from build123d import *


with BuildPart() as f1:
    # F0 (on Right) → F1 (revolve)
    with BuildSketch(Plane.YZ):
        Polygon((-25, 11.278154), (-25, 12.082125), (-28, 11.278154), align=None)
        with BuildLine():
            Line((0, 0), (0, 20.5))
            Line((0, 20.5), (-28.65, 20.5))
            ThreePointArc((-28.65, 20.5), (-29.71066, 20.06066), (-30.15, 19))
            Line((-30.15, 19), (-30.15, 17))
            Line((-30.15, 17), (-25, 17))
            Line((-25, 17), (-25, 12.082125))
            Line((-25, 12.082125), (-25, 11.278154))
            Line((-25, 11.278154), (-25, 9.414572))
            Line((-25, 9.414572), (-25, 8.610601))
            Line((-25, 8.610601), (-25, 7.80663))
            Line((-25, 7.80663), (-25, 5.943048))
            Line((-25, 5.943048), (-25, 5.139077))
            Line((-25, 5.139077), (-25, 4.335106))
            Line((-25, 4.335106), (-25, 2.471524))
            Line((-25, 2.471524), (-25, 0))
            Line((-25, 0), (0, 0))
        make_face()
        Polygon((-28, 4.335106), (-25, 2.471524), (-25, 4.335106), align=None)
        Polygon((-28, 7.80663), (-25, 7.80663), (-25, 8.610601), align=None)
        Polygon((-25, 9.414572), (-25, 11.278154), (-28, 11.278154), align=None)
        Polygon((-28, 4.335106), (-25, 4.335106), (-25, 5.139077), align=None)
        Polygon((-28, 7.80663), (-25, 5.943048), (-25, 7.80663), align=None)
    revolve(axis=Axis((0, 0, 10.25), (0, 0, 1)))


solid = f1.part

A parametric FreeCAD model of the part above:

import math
import FreeCAD as App
import Part
import Sketcher
from FreeCAD import Vector
Q = App.Units.Quantity

doc = App.newDocument("Part")
body = doc.addObject("PartDesign::Body", "Body")

sketch1 = doc.addObject("Sketcher::SketchObject", "Sketch")
body.addObject(sketch1)
sketch1.AttachmentSupport = (doc.YZ_Plane, [""])
sketch1.MapMode = "FlatFace"
sketch1.addGeometry([
    Part.LineSegment(Vector(-25, 12.1, 0), Vector(-28, 11.3, 0)),
    Part.LineSegment(Vector(-28, 11.3, 0), Vector(-25, 9.4, 0)),
    Part.LineSegment(Vector(-25, 9.4, 0), Vector(-25, 8.6, 0)),
    Part.LineSegment(Vector(-25, 8.6, 0), Vector(-28, 7.8, 0)),
    Part.LineSegment(Vector(-28, 7.8, 0), Vector(-25, 5.9, 0)),
    Part.LineSegment(Vector(-25, 5.9, 0), Vector(-25, 5.1, 0)),
    Part.LineSegment(Vector(-25, 5.1, 0), Vector(-28, 4.3, 0)),
    Part.LineSegment(Vector(-28, 4.3, 0), Vector(-25, 2.5, 0)),
    Part.LineSegment(Vector(-25, 2.5, 0), Vector(-25, 0, 0)),
    Part.LineSegment(Vector(-25, 0, 0), Vector(0, 0, 0)),
    Part.LineSegment(Vector(0, 0, 0), Vector(0, 20.5, 0)),
    Part.LineSegment(Vector(0, 20.5, 0), Vector(-28.6, 20.5, 0)),
    Part.ArcOfCircle(Part.Circle(Vector(-28.6, 19, 0), Vector(0, 0, 1), 1.5), math.radians(90), math.radians(180)),
    Part.LineSegment(Vector(-30.1, 19, 0), Vector(-30.1, 17, 0)),
    Part.LineSegment(Vector(-30.1, 17, 0), Vector(-25, 17, 0)),
    Part.LineSegment(Vector(-25, 17, 0), Vector(-25, 12.1, 0)),
], False)
sketch1.addConstraint([
    Sketcher.Constraint("Coincident", 0, 2, 1, 1),
    Sketcher.Constraint("Coincident", 1, 2, 2, 1),
    Sketcher.Constraint("Coincident", 2, 2, 3, 1),
    Sketcher.Constraint("Coincident", 3, 2, 4, 1),
    Sketcher.Constraint("Coincident", 4, 2, 5, 1),
    Sketcher.Constraint("Coincident", 5, 2, 6, 1),
    Sketcher.Constraint("Coincident", 6, 2, 7, 1),
    Sketcher.Constraint("Coincident", 7, 2, 8, 1),
    Sketcher.Constraint("Coincident", 8, 2, 9, 1),
    Sketcher.Constraint("Coincident", 9, 2, 10, 1),
    Sketcher.Constraint("Coincident", 10, 2, 11, 1),
    Sketcher.Constraint("Tangent", 11, 2, 12, 1),
    Sketcher.Constraint("Tangent", 12, 2, 13, 1),
    Sketcher.Constraint("Coincident", 13, 2, 14, 1),
    Sketcher.Constraint("Coincident", 14, 2, 15, 1),
    Sketcher.Constraint("Coincident", 15, 2, 0, 1),
    Sketcher.Constraint("Vertical", 2),
    Sketcher.Constraint("Vertical", 5),
    Sketcher.Constraint("Vertical", 8),
    Sketcher.Constraint("Horizontal", 9),
    Sketcher.Constraint("Vertical", 10),
    Sketcher.Constraint("Horizontal", 11),
    Sketcher.Constraint("Vertical", 13),
    Sketcher.Constraint("Horizontal", 14),
    Sketcher.Constraint("Vertical", 15),
    Sketcher.Constraint("Coincident", 9, 2, -1, 1),
    Sketcher.Constraint("Parallel", 0, 3),
    Sketcher.Constraint("Parallel", 1, 4),
    Sketcher.Constraint("Parallel", 3, 6),
    Sketcher.Constraint("Parallel", 4, 7),
    Sketcher.Constraint("Vertical", 0, 2, 3, 2),
    Sketcher.Constraint("Vertical", 2, 2, 4, 2),
    Sketcher.Constraint("Vertical", 3, 2, 6, 2),
    Sketcher.Constraint("Vertical", 5, 2, 7, 2),
    Sketcher.Constraint("Vertical", 8, 2, 14, 2),
    Sketcher.Constraint("Equal", 2, 5),
    Sketcher.Constraint("Radius", 12, Q("1.500001 mm")),
    Sketcher.Constraint("DistanceX", 9, 1, 9, 2, Q("25 mm")),
    Sketcher.Constraint("DistanceY", 13, 2, 13, 1, Q("2 mm")),
    Sketcher.Constraint("DistanceY", 10, 1, 10, 2, Q("20.5 mm")),
    Sketcher.Constraint("DistanceX", 0, 2, -1, 1, Q("28 mm")),
    Sketcher.Constraint("DistanceX", 11, 2, 11, 1, Q("28.65 mm")),
    Sketcher.Constraint("DistanceY", 2, 2, 2, 1, Q("0.803971 mm")),
    Sketcher.Constraint("DistanceY", -1, 1, 2, 2, Q("8.610601 mm")),
    Sketcher.Constraint("Distance", 0, Q("3.10586 mm")),
    Sketcher.Constraint("DistanceY", 8, 2, 8, 1, Q("2.471524 mm")),
])
revolution = doc.addObject("PartDesign::Revolution", "Revolution")
body.addObject(revolution)
revolution.Profile = sketch1
revolution.ReferenceAxis = (sketch1, ["V_Axis"])
revolution.Angle = 360

doc.recompute()
